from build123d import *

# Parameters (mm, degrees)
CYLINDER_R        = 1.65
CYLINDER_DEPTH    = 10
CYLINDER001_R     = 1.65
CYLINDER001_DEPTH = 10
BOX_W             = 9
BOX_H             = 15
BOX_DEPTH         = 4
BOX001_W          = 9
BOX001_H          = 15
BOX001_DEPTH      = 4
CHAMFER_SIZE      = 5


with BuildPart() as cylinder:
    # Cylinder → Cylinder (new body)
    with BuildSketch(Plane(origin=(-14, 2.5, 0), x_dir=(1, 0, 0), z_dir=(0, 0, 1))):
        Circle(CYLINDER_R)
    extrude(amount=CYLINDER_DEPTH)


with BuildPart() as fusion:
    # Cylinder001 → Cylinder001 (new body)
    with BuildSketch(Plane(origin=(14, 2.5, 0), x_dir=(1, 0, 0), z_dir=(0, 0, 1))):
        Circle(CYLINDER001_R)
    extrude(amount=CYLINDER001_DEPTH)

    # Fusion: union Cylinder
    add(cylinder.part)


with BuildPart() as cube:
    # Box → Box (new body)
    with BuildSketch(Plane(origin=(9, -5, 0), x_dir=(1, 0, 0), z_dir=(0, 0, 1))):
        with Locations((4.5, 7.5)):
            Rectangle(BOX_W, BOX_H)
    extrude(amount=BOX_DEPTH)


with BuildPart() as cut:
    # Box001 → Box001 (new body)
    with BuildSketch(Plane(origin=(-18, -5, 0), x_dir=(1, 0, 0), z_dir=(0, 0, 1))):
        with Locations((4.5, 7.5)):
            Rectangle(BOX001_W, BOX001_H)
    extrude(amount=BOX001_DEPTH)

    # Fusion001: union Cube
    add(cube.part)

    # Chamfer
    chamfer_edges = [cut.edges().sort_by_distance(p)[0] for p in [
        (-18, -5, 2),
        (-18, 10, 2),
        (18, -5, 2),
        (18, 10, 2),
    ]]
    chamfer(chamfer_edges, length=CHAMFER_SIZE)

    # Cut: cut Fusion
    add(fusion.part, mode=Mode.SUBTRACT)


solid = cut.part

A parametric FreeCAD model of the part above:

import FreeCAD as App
import Part
import Sketcher

V = App.Vector
Q = App.Units.Quantity


def edges_at(feature, points):
    """Names of the edges that pass closest to the given points."""
    edges = feature.Shape.Edges
    near = lambda p: min(range(len(edges)), key=lambda i: edges[i].distToShape(Part.Vertex(*p))[0])
    return sorted({f"Edge{near(p) + 1}" for p in points})


def add_polygon(sketch, points):
    """Adds a closed chain of lines whose ends are joined by coincident constraints."""
    first, n = sketch.GeometryCount, len(points)
    for a, b in zip(points, points[1:] + points[:1]):
        sketch.addGeometry(Part.LineSegment(App.Vector(*a, 0), App.Vector(*b, 0)), False)
    for i in range(n):
        sketch.addConstraint(Sketcher.Constraint("Coincident", first + i, 2, first + (i + 1) % n, 1))

doc = App.newDocument("Part")
params = doc.addObject("Spreadsheet::Sheet", "Params")
for row, (alias, value) in enumerate([
    ("sketch1_diameter", "3.3 mm"),
    ("pad1_length", "10 mm"),
    ("sketch2_diameter", "3.3 mm"),
    ("pad2_length", "10 mm"),
    ("sketch3_width", "9 mm"),
    ("sketch3_height", "15 mm"),
    ("pad3_length", "4 mm"),
    ("sketch4_width", "9 mm"),
    ("sketch4_height", "15 mm"),
    ("pad4_length", "4 mm"),
    ("chamfer_size", "5 mm"),
], start=1):
    params.set(f"A{row}", alias)
    params.set(f"B{row}", "=" + value)
    params.setAlias(f"B{row}", alias)

body = doc.addObject("PartDesign::Body", "Body")

sketch1 = body.newObject("Sketcher::SketchObject", "Sketch")
sketch1.AttachmentSupport = (doc.getObject("XY_Plane"), [""])
sketch1.MapMode = "FlatFace"
sketch1.addGeometry(Part.Circle(V(-14, 2.5, 0), V(0, 0, 1), 1.6), False)
sketch1.addConstraint([
    Sketcher.Constraint("Diameter", 0, Q("3.3 mm")),
    Sketcher.Constraint("DistanceX", 0, 3, -1, 1, Q("14 mm")),
    Sketcher.Constraint("DistanceY", -1, 1, 0, 3, Q("2.5 mm")),
])
sketch1.setExpression("Constraints[0]", "Params.sketch1_diameter")
pad1 = body.newObject("PartDesign::Pad", "Pad")
pad1.Profile = sketch1
pad1.setExpression("Length", "Params.pad1_length")
body2 = doc.addObject("PartDesign::Body", "Body001")
body2.AllowCompound = True

sketch2 = body2.newObject("Sketcher::SketchObject", "Sketch001")
sketch2.AttachmentSupport = (doc.getObject("XY_Plane001"), [""])
sketch2.MapMode = "FlatFace"
sketch2.addGeometry(Part.Circle(V(14, 2.5, 0), V(0, 0, 1), 1.6), False)
sketch2.addConstraint([
    Sketcher.Constraint("Diameter", 0, Q("3.3 mm")),
    Sketcher.Constraint("DistanceX", -1, 1, 0, 3, Q("14 mm")),
    Sketcher.Constraint("DistanceY", -1, 1, 0, 3, Q("2.5 mm")),
])
sketch2.setExpression("Constraints[0]", "Params.sketch2_diameter")
pad2 = body2.newObject("PartDesign::Pad", "Pad001")
pad2.Profile = sketch2
pad2.setExpression("Length", "Params.pad2_length")
doc.recompute()

boolean = body2.newObject("PartDesign::Boolean", "Boolean")
boolean.Type = "Fuse"
boolean.addObjects([body])
body3 = doc.addObject("PartDesign::Body", "Body002")

sketch3 = body3.newObject("Sketcher::SketchObject", "Sketch002")
sketch3.AttachmentSupport = (doc.getObject("XY_Plane002"), [""])
sketch3.MapMode = "FlatFace"
add_polygon(sketch3, [(9, 10), (9, -5), (18, -5), (18, 10)])
sketch3.addConstraint([
    Sketcher.Constraint("Vertical", 0),
    Sketcher.Constraint("Horizontal", 1),
    Sketcher.Constraint("Vertical", 2),
    Sketcher.Constraint("Horizontal", 3),
    Sketcher.Constraint("DistanceX", 1, 1, 1, 2, Q("9 mm")),
    Sketcher.Constraint("DistanceY", 0, 2, 0, 1, Q("15 mm")),
    Sketcher.Constraint("DistanceX", -1, 1, 0, 2, Q("9 mm")),
    Sketcher.Constraint("DistanceY", 0, 2, -1, 1, Q("5 mm")),
])
sketch3.setExpression("Constraints[8]", "Params.sketch3_width")
sketch3.setExpression("Constraints[9]", "Params.sketch3_height")
pad3 = body3.newObject("PartDesign::Pad", "Pad002")
pad3.Profile = sketch3
pad3.setExpression("Length", "Params.pad3_length")
body4 = doc.addObject("PartDesign::Body", "Body003")
body4.AllowCompound = True

sketch4 = body4.newObject("Sketcher::SketchObject", "Sketch003")
sketch4.AttachmentSupport = (doc.getObject("XY_Plane003"), [""])
sketch4.MapMode = "FlatFace"
add_polygon(sketch4, [(-18, 10), (-18, -5), (-9, -5), (-9, 10)])
sketch4.addConstraint([
    Sketcher.Constraint("Vertical", 0),
    Sketcher.Constraint("Horizontal", 1),
    Sketcher.Constraint("Vertical", 2),
    Sketcher.Constraint("Horizontal", 3),
    Sketcher.Constraint("DistanceX", 1, 1, 1, 2, Q("9 mm")),
    Sketcher.Constraint("DistanceY", 0, 2, 0, 1, Q("15 mm")),
    Sketcher.Constraint("DistanceX", 0, 2, -1, 1, Q("18 mm")),
    Sketcher.Constraint("DistanceY", 0, 2, -1, 1, Q("5 mm")),
])
sketch4.setExpression("Constraints[8]", "Params.sketch4_width")
sketch4.setExpression("Constraints[9]", "Params.sketch4_height")
pad4 = body4.newObject("PartDesign::Pad", "Pad003")
pad4.Profile = sketch4
pad4.setExpression("Length", "Params.pad4_length")
doc.recompute()

boolean2 = body4.newObject("PartDesign::Boolean", "Boolean001")
boolean2.Type = "Fuse"
boolean2.addObjects([body3])
doc.recompute()

chamfer = body4.newObject("PartDesign::Chamfer", "Chamfer")
chamfer.Base = (boolean2, edges_at(boolean2, [
    (-18, -5, 2),
    (-18, 10, 2),
    (18, -5, 2),
    (18, 10, 2),
]))
chamfer.setExpression("Size", "Params.chamfer_size")
doc.recompute()

boolean3 = body4.newObject("PartDesign::Boolean", "Boolean002")
boolean3.Type = "Cut"
boolean3.addObjects([body2])

doc.recompute()
